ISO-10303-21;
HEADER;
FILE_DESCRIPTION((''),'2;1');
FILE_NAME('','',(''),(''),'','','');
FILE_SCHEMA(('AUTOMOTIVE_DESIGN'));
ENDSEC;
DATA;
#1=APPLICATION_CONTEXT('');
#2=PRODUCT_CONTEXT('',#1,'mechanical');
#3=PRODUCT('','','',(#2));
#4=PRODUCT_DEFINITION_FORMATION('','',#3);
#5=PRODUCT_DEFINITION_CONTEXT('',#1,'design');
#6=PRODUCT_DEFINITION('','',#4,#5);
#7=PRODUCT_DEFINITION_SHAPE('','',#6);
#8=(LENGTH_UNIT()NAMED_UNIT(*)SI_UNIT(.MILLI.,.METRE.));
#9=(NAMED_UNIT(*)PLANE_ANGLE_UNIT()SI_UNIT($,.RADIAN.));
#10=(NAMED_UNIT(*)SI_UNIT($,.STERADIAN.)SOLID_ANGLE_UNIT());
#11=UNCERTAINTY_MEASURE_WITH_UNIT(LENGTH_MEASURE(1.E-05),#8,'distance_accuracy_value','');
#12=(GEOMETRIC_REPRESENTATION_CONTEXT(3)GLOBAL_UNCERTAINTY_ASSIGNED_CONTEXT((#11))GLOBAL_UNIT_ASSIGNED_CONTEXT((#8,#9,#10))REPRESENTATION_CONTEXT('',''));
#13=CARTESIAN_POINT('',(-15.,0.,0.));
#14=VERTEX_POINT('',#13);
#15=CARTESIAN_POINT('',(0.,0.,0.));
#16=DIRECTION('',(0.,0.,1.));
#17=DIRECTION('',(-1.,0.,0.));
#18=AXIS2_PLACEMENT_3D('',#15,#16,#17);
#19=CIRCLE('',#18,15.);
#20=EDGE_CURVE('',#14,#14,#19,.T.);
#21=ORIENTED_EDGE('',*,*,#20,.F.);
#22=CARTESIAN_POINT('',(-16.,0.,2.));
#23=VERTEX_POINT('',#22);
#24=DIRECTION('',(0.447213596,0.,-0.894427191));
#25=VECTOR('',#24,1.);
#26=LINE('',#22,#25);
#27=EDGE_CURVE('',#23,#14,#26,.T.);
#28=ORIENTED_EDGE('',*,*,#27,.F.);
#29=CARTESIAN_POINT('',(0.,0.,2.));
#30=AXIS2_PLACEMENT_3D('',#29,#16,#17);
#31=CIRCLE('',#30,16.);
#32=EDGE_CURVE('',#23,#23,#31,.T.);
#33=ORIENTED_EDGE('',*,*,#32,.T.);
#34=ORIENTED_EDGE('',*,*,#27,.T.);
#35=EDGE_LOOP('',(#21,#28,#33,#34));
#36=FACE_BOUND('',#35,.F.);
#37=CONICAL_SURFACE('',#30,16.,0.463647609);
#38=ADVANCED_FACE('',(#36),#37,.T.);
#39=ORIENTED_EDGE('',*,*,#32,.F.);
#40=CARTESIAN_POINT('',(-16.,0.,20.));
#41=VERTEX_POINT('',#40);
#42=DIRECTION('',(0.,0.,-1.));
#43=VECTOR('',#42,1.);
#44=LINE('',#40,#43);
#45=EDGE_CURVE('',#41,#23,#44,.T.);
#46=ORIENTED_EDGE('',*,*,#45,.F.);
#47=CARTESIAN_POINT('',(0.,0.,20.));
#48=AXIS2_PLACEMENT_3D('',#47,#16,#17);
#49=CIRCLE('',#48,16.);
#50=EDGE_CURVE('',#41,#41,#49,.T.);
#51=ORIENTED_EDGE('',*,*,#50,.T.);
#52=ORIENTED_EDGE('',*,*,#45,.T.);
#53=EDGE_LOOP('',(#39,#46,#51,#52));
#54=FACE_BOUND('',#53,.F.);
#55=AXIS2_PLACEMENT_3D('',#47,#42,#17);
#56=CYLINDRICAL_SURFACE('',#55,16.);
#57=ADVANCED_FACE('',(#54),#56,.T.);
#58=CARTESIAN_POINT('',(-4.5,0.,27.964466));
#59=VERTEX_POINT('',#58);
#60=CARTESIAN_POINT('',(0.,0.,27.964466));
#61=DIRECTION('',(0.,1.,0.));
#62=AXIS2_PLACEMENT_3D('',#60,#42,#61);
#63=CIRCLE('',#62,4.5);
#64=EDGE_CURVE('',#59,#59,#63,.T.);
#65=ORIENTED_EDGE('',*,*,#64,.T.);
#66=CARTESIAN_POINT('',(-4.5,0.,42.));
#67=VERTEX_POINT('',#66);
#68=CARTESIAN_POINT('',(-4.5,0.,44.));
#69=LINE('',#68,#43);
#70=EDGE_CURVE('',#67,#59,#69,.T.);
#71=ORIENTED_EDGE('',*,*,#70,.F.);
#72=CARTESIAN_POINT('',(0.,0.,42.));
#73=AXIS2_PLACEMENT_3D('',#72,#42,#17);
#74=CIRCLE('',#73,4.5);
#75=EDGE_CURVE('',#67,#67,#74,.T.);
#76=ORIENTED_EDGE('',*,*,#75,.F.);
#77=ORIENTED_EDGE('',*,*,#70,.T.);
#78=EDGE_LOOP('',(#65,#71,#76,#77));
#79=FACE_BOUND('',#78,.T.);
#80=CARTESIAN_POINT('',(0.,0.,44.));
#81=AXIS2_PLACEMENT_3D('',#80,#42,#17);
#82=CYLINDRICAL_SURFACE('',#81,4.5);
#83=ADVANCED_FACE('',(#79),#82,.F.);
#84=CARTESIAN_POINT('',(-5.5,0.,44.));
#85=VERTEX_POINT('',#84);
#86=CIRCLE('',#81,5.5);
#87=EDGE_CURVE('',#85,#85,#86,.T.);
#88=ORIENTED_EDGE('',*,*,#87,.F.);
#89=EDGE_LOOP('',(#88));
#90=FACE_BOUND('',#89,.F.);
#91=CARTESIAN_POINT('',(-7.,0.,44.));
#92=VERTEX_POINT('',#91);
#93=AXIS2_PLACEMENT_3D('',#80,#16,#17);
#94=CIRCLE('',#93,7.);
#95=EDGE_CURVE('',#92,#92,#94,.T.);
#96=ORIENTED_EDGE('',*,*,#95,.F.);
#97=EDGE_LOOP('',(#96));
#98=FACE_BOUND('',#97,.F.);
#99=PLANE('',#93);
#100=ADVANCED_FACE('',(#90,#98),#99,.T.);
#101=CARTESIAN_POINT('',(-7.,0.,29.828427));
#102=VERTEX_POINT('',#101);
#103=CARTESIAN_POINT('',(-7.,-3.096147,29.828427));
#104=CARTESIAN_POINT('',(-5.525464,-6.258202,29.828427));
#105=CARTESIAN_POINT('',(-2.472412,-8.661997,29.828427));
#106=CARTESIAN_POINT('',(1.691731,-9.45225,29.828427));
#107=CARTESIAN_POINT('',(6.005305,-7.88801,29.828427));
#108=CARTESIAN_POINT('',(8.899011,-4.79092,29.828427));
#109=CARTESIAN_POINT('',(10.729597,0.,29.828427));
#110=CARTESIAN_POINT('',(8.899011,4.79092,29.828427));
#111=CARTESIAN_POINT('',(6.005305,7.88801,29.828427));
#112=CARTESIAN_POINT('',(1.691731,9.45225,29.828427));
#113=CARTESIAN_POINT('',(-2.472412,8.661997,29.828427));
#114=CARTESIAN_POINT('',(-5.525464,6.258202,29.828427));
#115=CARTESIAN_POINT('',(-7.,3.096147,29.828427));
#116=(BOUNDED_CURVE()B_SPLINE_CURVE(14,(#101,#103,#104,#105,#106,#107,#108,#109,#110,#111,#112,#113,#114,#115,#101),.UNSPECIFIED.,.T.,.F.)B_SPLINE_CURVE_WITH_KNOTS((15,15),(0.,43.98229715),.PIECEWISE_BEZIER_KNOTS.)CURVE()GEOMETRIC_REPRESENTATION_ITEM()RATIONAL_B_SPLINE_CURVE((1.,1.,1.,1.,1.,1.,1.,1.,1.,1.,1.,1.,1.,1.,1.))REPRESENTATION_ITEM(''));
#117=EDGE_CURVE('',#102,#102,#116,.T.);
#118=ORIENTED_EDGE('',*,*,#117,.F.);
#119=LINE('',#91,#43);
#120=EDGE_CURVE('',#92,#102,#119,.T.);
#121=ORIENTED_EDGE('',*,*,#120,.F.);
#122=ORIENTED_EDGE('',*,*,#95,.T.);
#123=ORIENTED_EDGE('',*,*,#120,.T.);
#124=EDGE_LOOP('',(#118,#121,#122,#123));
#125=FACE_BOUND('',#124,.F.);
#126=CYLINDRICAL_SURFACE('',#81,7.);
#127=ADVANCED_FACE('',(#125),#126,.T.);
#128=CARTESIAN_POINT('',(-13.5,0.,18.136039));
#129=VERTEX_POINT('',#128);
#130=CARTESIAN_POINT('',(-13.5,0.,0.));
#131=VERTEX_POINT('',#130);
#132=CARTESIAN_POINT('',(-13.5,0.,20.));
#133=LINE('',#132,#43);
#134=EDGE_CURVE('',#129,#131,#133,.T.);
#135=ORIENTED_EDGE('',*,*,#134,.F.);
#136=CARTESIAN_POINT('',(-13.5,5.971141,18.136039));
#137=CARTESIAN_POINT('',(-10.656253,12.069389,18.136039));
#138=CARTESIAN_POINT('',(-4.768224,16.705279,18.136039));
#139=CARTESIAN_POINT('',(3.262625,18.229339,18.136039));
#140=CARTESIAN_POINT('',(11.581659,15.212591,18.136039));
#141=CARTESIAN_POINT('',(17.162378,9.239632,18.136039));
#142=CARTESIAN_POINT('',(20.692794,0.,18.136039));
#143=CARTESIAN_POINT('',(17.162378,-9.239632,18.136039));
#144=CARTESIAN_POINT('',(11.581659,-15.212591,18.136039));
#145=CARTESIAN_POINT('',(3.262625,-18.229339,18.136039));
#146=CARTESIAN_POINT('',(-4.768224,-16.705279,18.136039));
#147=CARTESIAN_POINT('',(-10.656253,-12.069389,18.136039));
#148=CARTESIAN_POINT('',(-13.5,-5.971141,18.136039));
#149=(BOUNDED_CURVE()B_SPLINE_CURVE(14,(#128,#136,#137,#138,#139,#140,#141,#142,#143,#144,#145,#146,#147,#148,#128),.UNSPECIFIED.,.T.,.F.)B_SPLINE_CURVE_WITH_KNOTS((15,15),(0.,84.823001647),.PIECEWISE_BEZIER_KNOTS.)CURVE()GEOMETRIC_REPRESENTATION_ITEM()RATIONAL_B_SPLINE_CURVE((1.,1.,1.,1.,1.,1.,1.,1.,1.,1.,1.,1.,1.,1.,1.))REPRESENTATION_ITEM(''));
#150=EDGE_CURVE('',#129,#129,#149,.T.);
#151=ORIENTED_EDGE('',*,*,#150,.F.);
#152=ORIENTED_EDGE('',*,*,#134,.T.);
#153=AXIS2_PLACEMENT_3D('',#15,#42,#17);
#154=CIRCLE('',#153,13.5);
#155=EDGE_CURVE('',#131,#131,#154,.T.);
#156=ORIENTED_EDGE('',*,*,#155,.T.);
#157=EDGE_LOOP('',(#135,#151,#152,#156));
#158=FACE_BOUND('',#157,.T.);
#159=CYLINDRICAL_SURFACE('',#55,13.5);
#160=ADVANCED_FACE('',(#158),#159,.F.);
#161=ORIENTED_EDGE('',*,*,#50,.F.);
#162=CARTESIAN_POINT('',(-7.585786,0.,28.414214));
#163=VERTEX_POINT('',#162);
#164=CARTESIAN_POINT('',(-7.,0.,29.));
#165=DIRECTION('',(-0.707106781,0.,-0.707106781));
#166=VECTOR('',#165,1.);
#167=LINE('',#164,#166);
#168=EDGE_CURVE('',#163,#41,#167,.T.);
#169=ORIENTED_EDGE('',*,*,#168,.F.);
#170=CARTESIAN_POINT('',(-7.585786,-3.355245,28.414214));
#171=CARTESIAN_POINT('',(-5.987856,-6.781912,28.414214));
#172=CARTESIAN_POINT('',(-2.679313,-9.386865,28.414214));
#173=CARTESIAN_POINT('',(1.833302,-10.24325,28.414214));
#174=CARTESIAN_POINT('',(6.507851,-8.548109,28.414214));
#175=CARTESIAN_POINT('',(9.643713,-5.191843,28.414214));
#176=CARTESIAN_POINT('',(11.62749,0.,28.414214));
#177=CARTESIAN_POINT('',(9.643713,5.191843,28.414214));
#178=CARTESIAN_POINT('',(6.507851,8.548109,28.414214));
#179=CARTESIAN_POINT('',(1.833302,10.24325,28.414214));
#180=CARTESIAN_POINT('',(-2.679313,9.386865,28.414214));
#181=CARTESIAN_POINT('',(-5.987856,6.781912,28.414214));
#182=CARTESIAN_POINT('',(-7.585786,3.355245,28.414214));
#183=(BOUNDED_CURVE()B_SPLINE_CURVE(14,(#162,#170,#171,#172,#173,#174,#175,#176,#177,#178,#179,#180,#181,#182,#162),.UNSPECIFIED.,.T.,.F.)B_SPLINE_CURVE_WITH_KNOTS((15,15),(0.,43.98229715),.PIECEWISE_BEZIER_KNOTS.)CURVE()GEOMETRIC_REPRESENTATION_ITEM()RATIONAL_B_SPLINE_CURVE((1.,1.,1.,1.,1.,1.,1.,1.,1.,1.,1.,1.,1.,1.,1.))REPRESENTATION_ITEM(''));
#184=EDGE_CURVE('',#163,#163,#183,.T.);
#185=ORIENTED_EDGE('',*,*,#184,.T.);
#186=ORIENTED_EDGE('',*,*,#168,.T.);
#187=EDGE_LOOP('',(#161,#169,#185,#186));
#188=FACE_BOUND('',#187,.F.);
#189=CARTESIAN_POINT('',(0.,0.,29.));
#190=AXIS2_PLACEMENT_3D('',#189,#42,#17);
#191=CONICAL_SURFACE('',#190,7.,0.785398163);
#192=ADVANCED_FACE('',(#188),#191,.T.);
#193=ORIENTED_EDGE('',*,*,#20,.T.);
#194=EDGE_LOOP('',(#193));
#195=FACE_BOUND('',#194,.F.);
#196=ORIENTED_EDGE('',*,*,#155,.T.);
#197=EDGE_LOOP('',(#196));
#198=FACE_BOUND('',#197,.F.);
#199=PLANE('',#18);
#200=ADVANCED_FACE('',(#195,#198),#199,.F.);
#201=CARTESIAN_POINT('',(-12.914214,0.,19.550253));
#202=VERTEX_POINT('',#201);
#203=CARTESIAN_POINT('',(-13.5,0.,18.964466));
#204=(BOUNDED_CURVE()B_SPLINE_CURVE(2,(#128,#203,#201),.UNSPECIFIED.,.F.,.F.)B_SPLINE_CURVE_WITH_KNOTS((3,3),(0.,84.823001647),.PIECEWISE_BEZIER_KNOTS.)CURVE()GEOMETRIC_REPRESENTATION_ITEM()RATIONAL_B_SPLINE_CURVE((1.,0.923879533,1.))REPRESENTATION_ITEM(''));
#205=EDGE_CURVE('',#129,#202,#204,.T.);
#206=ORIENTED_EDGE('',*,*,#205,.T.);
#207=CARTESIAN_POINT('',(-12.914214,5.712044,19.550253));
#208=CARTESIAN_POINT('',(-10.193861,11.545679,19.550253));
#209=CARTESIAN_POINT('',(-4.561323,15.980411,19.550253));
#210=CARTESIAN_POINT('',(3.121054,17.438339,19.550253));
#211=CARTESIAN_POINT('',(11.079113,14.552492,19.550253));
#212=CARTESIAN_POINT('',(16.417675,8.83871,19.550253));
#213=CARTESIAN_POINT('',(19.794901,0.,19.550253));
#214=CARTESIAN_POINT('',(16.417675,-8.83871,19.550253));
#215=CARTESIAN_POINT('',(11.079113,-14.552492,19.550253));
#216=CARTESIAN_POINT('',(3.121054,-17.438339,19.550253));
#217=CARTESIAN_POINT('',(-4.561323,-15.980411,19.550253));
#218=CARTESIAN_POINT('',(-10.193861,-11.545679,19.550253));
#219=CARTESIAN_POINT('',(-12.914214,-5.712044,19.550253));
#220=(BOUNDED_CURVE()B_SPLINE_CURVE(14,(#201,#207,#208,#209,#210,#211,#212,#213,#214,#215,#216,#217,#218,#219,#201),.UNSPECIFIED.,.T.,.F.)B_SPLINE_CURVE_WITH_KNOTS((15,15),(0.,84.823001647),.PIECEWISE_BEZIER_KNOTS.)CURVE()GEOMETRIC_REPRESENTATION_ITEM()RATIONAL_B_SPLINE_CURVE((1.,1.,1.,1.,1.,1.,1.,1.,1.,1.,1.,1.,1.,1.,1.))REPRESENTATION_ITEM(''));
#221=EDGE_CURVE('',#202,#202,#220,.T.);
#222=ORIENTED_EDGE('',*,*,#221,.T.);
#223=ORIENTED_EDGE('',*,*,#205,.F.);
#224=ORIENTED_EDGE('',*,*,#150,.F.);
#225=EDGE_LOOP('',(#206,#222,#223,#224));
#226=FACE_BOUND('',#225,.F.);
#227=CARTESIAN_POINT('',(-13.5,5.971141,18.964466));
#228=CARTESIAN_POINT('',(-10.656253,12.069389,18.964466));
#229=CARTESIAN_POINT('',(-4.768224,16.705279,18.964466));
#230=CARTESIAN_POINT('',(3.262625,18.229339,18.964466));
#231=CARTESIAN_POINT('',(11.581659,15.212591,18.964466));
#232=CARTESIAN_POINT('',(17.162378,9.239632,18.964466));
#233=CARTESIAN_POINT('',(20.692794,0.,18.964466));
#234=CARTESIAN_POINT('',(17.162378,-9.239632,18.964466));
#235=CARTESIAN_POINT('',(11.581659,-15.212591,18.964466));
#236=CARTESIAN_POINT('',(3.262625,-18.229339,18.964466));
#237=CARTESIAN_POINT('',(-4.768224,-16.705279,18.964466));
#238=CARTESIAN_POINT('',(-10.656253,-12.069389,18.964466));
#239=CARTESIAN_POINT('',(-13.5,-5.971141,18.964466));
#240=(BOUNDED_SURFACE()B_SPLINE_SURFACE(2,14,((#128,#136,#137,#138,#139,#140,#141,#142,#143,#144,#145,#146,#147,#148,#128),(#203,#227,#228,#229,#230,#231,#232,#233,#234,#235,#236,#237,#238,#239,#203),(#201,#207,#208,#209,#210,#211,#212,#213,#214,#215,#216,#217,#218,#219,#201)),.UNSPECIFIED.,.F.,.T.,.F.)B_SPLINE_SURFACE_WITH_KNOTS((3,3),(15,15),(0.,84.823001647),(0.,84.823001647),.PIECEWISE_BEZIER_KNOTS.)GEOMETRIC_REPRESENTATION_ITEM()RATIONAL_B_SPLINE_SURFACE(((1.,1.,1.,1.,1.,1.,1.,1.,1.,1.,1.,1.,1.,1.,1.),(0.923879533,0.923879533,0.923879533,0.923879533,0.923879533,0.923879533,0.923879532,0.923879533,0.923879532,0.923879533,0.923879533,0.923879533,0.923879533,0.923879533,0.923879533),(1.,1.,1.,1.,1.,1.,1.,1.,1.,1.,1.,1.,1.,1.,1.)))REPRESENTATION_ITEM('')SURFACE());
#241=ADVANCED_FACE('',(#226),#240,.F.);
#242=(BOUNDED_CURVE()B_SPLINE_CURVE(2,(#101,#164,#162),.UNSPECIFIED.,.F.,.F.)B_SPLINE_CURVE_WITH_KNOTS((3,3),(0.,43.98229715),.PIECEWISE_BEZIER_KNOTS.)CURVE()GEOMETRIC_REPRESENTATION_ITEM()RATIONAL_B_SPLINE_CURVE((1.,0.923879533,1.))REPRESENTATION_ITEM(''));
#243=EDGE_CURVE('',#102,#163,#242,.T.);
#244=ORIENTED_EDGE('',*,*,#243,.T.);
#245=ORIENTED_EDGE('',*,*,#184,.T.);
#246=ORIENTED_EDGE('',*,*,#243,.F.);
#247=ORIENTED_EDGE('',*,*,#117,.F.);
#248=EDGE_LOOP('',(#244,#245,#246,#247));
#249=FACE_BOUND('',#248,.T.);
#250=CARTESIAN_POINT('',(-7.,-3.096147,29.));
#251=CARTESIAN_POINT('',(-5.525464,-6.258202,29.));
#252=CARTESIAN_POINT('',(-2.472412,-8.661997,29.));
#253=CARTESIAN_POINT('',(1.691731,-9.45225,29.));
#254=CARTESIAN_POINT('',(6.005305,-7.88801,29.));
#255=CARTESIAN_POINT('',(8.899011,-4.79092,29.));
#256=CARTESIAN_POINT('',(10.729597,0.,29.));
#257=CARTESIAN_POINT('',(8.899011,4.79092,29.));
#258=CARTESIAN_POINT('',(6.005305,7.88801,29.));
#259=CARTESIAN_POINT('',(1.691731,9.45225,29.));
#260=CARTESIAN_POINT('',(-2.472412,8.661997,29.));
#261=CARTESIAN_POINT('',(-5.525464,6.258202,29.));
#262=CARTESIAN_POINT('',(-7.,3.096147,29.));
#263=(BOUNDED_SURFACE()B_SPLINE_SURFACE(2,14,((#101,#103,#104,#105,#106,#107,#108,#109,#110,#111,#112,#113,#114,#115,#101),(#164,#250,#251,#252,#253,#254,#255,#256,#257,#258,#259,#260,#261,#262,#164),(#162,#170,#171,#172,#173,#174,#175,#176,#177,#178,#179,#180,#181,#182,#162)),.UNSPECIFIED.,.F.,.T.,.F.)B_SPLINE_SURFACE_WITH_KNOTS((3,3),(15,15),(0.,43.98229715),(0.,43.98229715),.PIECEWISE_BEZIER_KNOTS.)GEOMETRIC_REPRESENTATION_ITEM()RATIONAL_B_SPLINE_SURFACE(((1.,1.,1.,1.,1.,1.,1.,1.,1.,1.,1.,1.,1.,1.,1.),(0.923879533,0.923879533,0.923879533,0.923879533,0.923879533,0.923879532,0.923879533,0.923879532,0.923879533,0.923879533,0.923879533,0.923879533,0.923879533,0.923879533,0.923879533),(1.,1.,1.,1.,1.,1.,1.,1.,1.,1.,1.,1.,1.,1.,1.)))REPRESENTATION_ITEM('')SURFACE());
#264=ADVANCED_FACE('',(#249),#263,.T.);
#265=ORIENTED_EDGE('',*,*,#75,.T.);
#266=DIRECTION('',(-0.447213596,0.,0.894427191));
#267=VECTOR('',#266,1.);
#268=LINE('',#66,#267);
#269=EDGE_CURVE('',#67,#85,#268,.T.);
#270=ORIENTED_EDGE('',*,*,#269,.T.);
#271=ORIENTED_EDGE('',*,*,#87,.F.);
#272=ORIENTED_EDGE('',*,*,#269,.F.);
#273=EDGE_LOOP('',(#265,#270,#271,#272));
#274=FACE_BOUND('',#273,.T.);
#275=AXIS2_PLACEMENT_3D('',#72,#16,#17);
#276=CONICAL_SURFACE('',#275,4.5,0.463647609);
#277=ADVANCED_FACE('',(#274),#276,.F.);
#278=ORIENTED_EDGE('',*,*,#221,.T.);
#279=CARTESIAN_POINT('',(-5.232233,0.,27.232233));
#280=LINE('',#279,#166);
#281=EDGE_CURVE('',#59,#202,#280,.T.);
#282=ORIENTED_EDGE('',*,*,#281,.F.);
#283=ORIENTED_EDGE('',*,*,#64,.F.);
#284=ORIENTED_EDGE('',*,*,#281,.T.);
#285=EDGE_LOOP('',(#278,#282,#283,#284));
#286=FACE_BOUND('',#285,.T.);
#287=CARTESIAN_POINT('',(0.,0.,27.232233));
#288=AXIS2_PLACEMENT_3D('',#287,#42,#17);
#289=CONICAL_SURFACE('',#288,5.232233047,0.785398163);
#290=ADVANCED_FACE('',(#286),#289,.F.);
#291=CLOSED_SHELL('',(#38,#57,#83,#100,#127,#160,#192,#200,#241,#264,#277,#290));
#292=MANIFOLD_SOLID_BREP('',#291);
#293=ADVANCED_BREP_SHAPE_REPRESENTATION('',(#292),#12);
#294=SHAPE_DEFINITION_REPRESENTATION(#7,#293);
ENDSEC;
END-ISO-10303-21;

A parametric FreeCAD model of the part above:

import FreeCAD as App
import Part
import Sketcher

V = App.Vector


def edges_at(feature, points):
    """Names of the edges that pass closest to the given points."""
    edges = feature.Shape.Edges
    near = lambda p: min(range(len(edges)), key=lambda i: edges[i].distToShape(Part.Vertex(*p))[0])
    return sorted({f"Edge{near(p) + 1}" for p in points})


def faces_at(feature, points):
    """Names of the faces that lie closest to the given points."""
    faces = feature.Shape.Faces
    near = lambda p: min(range(len(faces)), key=lambda i: faces[i].distToShape(Part.Vertex(*p))[0])
    return sorted({f"Face{near(p) + 1}" for p in points})

doc = App.newDocument("Part")
body = doc.addObject("PartDesign::Body", "Body")

sketch1 = body.newObject("Sketcher::SketchObject", "Sketch")
sketch1.AttachmentSupport = (doc.getObject("XZ_Plane"), [""])
sketch1.MapMode = "FlatFace"
sketch1.addGeometry([
    Part.LineSegment(V(0, 0, 0), V(0, 44, 0)),
    Part.LineSegment(V(0, 44, 0), V(-7, 44, 0)),
    Part.LineSegment(V(-7, 44, 0), V(-7, 29, 0)),
    Part.LineSegment(V(-7, 29, 0), V(-16, 20, 0)),
    Part.LineSegment(V(-16, 20, 0), V(-16, 0, 0)),
    Part.LineSegment(V(-16, 0, 0), V(0, 0, 0)),
], False)
sketch1.addConstraint([
    Sketcher.Constraint("Coincident", 0, 2, 1, 1),
    Sketcher.Constraint("Coincident", 1, 2, 2, 1),
    Sketcher.Constraint("Coincident", 2, 2, 3, 1),
    Sketcher.Constraint("Coincident", 3, 2, 4, 1),
    Sketcher.Constraint("Coincident", 4, 2, 5, 1),
    Sketcher.Constraint("Coincident", 5, 2, 0, 1),
    Sketcher.Constraint("Vertical", 0),
    Sketcher.Constraint("Horizontal", 1),
    Sketcher.Constraint("Vertical", 2),
    Sketcher.Constraint("Vertical", 4),
    Sketcher.Constraint("Horizontal", 5),
    Sketcher.Constraint("Coincident", 5, 2, -1, 1),
    Sketcher.Constraint("DistanceX", 1, 2, 1, 1, 7.0),
    Sketcher.Constraint("DistanceX", 5, 1, 5, 2, 16.0),
    Sketcher.Constraint("DistanceY", 0, 1, 0, 2, 44.0),
    Sketcher.Constraint("DistanceY", 2, 2, 2, 1, 15.0),
    Sketcher.Constraint("DistanceY", 4, 2, 4, 1, 20.0),
])
revolution = body.newObject("PartDesign::Revolution", "Revolution")
revolution.Profile = sketch1
revolution.ReferenceAxis = (sketch1, ["V_Axis"])
revolution.Angle = 360
doc.recompute()

thickness = body.newObject("PartDesign::Thickness", "Thickness")
thickness.Base = (revolution, faces_at(revolution, [(0, 0, 44), (0, 0, 0)]))
thickness.Value = 2.5
thickness.Reversed = True
thickness.Join = "Intersection"
doc.recompute()

fillet = body.newObject("PartDesign::Fillet", "Fillet")
fillet.Base = (thickness, edges_at(thickness, [(7, 0, 29), (13.5, 0, 18.964)]))
fillet.Radius = 2
doc.recompute()

chamfer = body.newObject("PartDesign::Chamfer", "Chamfer")
chamfer.Base = (fillet, edges_at(fillet, [(16, 0, 0)]))
chamfer.ChamferType = "Two distances"
chamfer.Size = 2
chamfer.Size2 = 1
doc.recompute()

chamfer2 = body.newObject("PartDesign::Chamfer", "Chamfer001")
chamfer2.Base = (chamfer, edges_at(chamfer, [(4.5, 0, 44)]))
chamfer2.ChamferType = "Two distances"
chamfer2.Size = 2
chamfer2.Size2 = 1
chamfer2.FlipDirection = True

doc.recompute()
